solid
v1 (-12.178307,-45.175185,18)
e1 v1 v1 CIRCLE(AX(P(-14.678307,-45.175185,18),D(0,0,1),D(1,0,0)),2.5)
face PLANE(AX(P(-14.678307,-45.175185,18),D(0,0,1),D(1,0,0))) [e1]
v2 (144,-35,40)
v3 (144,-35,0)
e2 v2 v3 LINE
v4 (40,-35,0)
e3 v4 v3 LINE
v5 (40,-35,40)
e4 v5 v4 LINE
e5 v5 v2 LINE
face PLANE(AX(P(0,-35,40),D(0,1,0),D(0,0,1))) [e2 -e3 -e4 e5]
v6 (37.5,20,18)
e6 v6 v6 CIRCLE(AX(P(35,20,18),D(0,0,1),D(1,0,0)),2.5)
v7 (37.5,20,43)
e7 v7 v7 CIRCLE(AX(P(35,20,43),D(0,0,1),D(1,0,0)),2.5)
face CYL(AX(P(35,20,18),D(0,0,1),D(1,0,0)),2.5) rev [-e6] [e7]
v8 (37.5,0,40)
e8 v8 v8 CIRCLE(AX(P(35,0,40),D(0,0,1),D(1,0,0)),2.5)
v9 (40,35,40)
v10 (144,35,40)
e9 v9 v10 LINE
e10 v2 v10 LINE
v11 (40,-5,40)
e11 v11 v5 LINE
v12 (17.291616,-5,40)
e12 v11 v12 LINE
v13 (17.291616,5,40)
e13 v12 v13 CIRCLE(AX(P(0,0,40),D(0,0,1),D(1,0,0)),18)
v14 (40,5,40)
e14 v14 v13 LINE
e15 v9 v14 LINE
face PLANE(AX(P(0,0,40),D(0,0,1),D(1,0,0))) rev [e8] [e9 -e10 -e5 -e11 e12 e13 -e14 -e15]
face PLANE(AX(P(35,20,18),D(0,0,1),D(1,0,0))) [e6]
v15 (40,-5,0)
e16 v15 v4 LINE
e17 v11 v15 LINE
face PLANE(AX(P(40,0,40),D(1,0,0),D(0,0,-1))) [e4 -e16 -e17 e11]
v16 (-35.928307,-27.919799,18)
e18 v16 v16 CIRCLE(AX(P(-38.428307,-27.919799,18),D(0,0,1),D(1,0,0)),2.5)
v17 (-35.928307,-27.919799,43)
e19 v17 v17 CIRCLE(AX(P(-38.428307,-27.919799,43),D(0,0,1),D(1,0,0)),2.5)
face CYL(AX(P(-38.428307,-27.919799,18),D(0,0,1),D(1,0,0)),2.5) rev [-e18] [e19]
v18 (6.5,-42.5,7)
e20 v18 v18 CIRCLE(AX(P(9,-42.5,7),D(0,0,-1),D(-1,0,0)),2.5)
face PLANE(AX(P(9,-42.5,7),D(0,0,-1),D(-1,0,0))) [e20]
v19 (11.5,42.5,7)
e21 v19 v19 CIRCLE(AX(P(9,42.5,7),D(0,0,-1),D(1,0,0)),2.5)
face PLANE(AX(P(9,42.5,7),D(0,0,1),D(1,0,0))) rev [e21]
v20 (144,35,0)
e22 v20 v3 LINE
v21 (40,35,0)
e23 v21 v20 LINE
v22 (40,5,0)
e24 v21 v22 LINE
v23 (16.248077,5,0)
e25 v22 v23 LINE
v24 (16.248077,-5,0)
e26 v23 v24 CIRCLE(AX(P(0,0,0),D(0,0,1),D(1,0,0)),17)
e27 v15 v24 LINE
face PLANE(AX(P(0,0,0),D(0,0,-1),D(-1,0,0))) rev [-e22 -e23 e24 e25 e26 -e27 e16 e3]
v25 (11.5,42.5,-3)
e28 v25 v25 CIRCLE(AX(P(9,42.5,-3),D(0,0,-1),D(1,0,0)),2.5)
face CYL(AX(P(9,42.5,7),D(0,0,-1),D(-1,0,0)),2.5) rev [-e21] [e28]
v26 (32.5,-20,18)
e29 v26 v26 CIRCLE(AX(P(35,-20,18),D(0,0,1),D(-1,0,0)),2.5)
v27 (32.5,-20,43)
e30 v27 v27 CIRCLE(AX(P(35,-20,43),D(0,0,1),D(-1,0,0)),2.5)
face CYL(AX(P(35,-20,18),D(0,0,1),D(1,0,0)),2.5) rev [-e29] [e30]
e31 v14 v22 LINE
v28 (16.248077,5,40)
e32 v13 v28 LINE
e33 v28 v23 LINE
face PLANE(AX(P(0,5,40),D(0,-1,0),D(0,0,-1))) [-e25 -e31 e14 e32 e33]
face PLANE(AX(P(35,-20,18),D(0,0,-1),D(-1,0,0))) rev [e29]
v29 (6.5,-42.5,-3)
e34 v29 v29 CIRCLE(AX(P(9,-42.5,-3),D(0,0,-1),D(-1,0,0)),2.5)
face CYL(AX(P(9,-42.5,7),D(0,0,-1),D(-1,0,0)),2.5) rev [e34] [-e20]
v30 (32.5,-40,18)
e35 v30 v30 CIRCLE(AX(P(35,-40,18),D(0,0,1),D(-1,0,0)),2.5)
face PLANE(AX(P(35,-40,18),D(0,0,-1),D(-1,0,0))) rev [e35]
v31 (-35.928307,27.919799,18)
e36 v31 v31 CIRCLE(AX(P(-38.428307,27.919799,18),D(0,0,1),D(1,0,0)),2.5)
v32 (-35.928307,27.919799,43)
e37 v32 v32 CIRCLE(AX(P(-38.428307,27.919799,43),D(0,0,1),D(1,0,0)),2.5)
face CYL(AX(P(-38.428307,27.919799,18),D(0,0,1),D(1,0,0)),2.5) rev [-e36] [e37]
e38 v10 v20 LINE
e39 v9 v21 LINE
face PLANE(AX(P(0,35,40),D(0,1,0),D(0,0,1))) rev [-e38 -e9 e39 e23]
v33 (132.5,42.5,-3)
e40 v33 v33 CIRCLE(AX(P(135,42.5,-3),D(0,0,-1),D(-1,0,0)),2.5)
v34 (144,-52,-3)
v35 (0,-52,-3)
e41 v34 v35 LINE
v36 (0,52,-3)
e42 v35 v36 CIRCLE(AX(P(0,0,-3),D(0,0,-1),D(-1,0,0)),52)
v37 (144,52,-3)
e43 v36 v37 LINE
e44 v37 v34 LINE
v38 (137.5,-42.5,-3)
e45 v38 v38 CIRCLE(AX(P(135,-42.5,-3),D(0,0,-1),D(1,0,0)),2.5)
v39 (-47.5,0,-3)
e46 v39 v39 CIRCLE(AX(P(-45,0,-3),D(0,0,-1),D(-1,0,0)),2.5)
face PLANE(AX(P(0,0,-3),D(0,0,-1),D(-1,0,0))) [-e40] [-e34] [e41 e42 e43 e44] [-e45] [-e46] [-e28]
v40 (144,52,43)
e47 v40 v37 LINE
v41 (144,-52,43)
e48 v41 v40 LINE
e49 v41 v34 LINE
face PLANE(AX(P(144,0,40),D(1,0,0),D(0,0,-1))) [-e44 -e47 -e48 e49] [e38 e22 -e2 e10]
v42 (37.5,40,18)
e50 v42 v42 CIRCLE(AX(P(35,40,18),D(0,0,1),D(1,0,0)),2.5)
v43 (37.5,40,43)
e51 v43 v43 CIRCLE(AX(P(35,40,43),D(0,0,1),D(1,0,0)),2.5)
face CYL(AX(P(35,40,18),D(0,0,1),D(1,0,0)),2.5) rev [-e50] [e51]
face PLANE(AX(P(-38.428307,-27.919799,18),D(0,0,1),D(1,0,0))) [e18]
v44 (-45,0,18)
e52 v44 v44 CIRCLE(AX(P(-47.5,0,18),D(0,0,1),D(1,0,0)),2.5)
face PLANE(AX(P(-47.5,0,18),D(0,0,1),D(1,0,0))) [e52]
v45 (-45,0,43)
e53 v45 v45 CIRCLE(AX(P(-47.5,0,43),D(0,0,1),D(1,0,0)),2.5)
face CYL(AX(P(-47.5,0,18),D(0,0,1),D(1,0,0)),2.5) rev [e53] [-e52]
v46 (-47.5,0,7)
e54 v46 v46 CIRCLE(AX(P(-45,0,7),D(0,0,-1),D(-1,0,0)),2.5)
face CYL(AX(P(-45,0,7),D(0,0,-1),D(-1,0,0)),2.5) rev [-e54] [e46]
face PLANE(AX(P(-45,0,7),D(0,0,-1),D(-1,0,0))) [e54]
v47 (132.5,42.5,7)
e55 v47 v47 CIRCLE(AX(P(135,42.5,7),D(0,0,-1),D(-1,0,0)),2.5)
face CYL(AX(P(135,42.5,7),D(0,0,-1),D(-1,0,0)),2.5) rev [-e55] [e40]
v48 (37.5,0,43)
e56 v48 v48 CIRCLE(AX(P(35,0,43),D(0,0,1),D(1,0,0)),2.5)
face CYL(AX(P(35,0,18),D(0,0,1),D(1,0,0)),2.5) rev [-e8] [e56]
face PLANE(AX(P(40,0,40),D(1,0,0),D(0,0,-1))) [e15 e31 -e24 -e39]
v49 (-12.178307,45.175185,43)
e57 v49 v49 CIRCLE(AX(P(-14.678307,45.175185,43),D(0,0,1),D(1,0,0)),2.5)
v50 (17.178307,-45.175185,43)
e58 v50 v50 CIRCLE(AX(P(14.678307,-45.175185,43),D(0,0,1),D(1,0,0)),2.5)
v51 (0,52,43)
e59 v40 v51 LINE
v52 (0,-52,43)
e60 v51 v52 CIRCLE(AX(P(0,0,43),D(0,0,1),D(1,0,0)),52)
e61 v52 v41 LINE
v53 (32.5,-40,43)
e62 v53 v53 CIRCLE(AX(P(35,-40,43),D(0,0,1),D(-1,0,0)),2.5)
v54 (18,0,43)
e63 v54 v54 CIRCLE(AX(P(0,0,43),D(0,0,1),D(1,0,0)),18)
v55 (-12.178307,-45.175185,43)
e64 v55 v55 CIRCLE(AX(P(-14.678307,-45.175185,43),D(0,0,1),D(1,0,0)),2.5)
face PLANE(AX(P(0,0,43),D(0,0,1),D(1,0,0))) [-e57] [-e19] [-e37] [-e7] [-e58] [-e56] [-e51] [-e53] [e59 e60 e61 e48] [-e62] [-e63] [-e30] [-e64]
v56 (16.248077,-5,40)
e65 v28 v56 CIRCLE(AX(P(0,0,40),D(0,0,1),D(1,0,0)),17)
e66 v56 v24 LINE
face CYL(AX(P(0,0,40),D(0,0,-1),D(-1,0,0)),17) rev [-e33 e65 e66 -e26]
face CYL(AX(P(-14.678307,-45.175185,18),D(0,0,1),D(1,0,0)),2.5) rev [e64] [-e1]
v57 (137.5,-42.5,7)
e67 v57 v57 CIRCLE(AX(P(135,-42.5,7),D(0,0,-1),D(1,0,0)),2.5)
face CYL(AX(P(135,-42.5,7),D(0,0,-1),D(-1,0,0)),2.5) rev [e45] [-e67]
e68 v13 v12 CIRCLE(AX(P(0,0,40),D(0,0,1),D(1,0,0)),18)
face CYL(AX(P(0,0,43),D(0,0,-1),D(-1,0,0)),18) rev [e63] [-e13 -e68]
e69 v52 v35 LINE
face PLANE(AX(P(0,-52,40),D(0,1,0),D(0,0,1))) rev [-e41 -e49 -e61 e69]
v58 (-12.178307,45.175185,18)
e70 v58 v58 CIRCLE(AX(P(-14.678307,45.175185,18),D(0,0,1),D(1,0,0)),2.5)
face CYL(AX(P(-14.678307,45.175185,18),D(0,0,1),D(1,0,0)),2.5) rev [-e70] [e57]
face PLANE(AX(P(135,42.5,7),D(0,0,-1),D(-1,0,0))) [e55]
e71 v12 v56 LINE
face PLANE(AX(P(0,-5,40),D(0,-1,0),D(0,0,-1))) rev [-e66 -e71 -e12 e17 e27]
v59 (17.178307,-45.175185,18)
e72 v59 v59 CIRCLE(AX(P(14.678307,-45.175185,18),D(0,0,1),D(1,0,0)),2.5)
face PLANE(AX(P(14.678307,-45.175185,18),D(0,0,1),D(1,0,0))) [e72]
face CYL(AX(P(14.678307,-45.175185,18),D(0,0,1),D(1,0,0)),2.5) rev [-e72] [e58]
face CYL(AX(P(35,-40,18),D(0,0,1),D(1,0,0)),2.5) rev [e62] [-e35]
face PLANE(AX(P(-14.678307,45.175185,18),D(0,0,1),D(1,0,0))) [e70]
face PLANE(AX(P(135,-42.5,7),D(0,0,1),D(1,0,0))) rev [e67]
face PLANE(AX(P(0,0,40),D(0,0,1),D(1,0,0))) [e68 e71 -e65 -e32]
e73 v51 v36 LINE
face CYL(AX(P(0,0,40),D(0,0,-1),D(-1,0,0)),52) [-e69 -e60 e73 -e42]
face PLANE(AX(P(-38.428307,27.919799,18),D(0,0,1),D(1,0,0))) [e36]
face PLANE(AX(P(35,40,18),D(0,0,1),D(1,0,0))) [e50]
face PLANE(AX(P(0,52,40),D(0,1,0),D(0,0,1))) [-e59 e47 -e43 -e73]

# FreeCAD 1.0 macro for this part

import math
import FreeCAD as App
import Part
import Sketcher

V = App.Vector

doc = App.newDocument("Part")
body = doc.addObject("PartDesign::Body", "Body")

# Sketch on XY plane
sketch1 = body.newObject("Sketcher::SketchObject", "Sketch")
sketch1.AttachmentSupport = (doc.getObject("XY_Plane"), [""])
sketch1.MapMode = "FlatFace"
sketch1.addGeometry([
    Part.LineSegment(V(144, 52, 0), V(0, 52, 0)),  # 0
    Part.ArcOfCircle(Part.Circle(V(0, 0, 0), V(0, 0, 1), 52), math.radians(90), math.radians(270)),  # 1
    Part.LineSegment(V(0, -52, 0), V(144, -52, 0)),  # 2
    Part.LineSegment(V(144, -52, 0), V(144, -35, 0)),  # 3
    Part.LineSegment(V(144, -35, 0), V(40, -35, 0)),  # 4
    Part.LineSegment(V(40, -35, 0), V(40, -5, 0)),  # 5
    Part.LineSegment(V(40, -5, 0), V(16, -5, 0)),  # 6
    Part.ArcOfCircle(Part.Circle(V(0, 0, 0), V(0, 0, 1), 17), math.radians(17), math.radians(343)),  # 7
    Part.LineSegment(V(16, 5, 0), V(40, 5, 0)),  # 8
    Part.LineSegment(V(40, 5, 0), V(40, 35, 0)),  # 9
    Part.LineSegment(V(40, 35, 0), V(144, 35, 0)),  # 10
    Part.LineSegment(V(144, 35, 0), V(144, 52, 0)),  # 11
], False)
sketch1.addConstraint([
    Sketcher.Constraint("Tangent", 0, 2, 1, 1),
    Sketcher.Constraint("Tangent", 1, 2, 2, 1),
    Sketcher.Constraint("Coincident", 2, 2, 3, 1),
    Sketcher.Constraint("Coincident", 3, 2, 4, 1),
    Sketcher.Constraint("Coincident", 4, 2, 5, 1),
    Sketcher.Constraint("Coincident", 5, 2, 6, 1),
    Sketcher.Constraint("Coincident", 6, 2, 7, 2),
    Sketcher.Constraint("Coincident", 7, 1, 8, 1),
    Sketcher.Constraint("Coincident", 8, 2, 9, 1),
    Sketcher.Constraint("Coincident", 9, 2, 10, 1),
    Sketcher.Constraint("Coincident", 10, 2, 11, 1),
    Sketcher.Constraint("Coincident", 11, 2, 0, 1),
    Sketcher.Constraint("Horizontal", 0),
    Sketcher.Constraint("Horizontal", 2),
    Sketcher.Constraint("Vertical", 3),
    Sketcher.Constraint("Horizontal", 4),
    Sketcher.Constraint("Vertical", 5),
    Sketcher.Constraint("Horizontal", 6),
    Sketcher.Constraint("Horizontal", 8),
    Sketcher.Constraint("Vertical", 9),
    Sketcher.Constraint("Horizontal", 10),
    Sketcher.Constraint("Vertical", 11),
    Sketcher.Constraint("Coincident", 1, 3, -1, 1),
    Sketcher.Constraint("Coincident", 7, 3, -1, 1),
    Sketcher.Constraint("Symmetric", 5, 2, 8, 2, -1),
    Sketcher.Constraint("Symmetric", 3, 2, 10, 2, -1),
    Sketcher.Constraint("Radius", 1, 52.0),
    Sketcher.Constraint("Radius", 7, 17.0),
    Sketcher.Constraint("DistanceX", 0, 2, 0, 1, 144.0),
    Sketcher.Constraint("DistanceX", 4, 2, 4, 1, 104.0),
    Sketcher.Constraint("DistanceY", 3, 1, 3, 2, 17.0),
    Sketcher.Constraint("DistanceY", 5, 1, 5, 2, 30.0),
])
pad1 = body.newObject("PartDesign::Pad", "Pad")
pad1.Profile = sketch1
pad1.Length = 40

# Sketch on XY plane
sketch2 = body.newObject("Sketcher::SketchObject", "Sketch001")
sketch2.AttachmentSupport = (doc.getObject("XY_Plane"), [""])
sketch2.MapMode = "FlatFace"
sketch2.AttachmentOffset = App.Placement(V(0, 0, 40), App.Rotation())
sketch2.addGeometry([
    Part.LineSegment(V(144, -52, 0), V(144, 52, 0)),  # 0
    Part.LineSegment(V(144, 52, 0), V(0, 52, 0)),  # 1
    Part.ArcOfCircle(Part.Circle(V(0, 0, 0), V(0, 0, 1), 52), math.radians(90), math.radians(270)),  # 2
    Part.LineSegment(V(0, -52, 0), V(144, -52, 0)),  # 3
    Part.Circle(V(0, 0, 0), V(0, 0, 1), 18),  # 4
], False)
sketch2.addConstraint([
    Sketcher.Constraint("Coincident", 0, 2, 1, 1),
    Sketcher.Constraint("Tangent", 1, 2, 2, 1),
    Sketcher.Constraint("Tangent", 2, 2, 3, 1),
    Sketcher.Constraint("Coincident", 3, 2, 0, 1),
    Sketcher.Constraint("Vertical", 0),
    Sketcher.Constraint("Horizontal", 1),
    Sketcher.Constraint("Horizontal", 3),
    Sketcher.Constraint("Coincident", 2, 3, -1, 1),
    Sketcher.Constraint("Coincident", 4, 3, -1, 1),
    Sketcher.Constraint("Diameter", 4, 36.0),
    Sketcher.Constraint("Radius", 2, 52.0),
    Sketcher.Constraint("DistanceX", 1, 2, 1, 1, 144.0),
])
pad2 = body.newObject("PartDesign::Pad", "Pad001")
pad2.Profile = sketch2
pad2.Length = 3

# Sketch on XY plane
sketch3 = body.newObject("Sketcher::SketchObject", "Sketch002")
sketch3.AttachmentSupport = (doc.getObject("XY_Plane"), [""])
sketch3.MapMode = "FlatFace"
sketch3.AttachmentOffset = App.Placement(V(0, 0, -3), App.Rotation())
sketch3.addGeometry([
    Part.LineSegment(V(144, -52, 0), V(0, -52, 0)),
    Part.ArcOfCircle(Part.Circle(V(0, 0, 0), V(0, 0, 1), 52), math.radians(90), math.radians(270)),
    Part.LineSegment(V(0, 52, 0), V(144, 52, 0)),
    Part.LineSegment(V(144, 52, 0), V(144, -52, 0)),
], False)
sketch3.addConstraint([
    Sketcher.Constraint("Tangent", 0, 2, 1, 2),
    Sketcher.Constraint("Tangent", 1, 1, 2, 1),
    Sketcher.Constraint("Coincident", 2, 2, 3, 1),
    Sketcher.Constraint("Coincident", 3, 2, 0, 1),
    Sketcher.Constraint("Horizontal", 0),
    Sketcher.Constraint("Horizontal", 2),
    Sketcher.Constraint("Vertical", 3),
    Sketcher.Constraint("Coincident", 1, 3, -1, 1),
    Sketcher.Constraint("Radius", 1, 52.0),
    Sketcher.Constraint("DistanceX", 0, 2, 0, 1, 144.0),
])
pad3 = body.newObject("PartDesign::Pad", "Pad002")
pad3.Profile = sketch3
pad3.Length = 3

# Sketch on XY plane
sketch4 = body.newObject("Sketcher::SketchObject", "Sketch003")
sketch4.AttachmentSupport = (doc.getObject("XY_Plane"), [""])
sketch4.MapMode = "FlatFace"
sketch4.AttachmentOffset = App.Placement(V(0, 0, -3), App.Rotation())
sketch4.addGeometry([
    Part.Circle(V(135, 42.5, 0), V(0, 0, 1), 2.5),  # 0
    Part.Circle(V(9, 42.5, 0), V(0, 0, 1), 2.5),  # 1
    Part.Circle(V(9, -42.5, 0), V(0, 0, 1), 2.5),  # 2
    Part.Circle(V(135, -42.5, 0), V(0, 0, 1), 2.5),  # 3
    Part.Circle(V(-45, 0, 0), V(0, 0, 1), 2.5),  # 4
], False)
sketch4.addConstraint([
    Sketcher.Constraint("Equal", 0, 1),
    Sketcher.Constraint("Equal", 1, 2),
    Sketcher.Constraint("Equal", 2, 3),
    Sketcher.Constraint("Equal", 3, 4),
    Sketcher.Constraint("Symmetric", 1, 3, 2, 3, -1),
    Sketcher.Constraint("Symmetric", 0, 3, 3, 3, -1),
    Sketcher.Constraint("PointOnObject", 4, 3, -1),
    Sketcher.Constraint("Horizontal", 0, 3, 1, 3),
    Sketcher.Constraint("Diameter", 0, 5.0),
    Sketcher.Constraint("DistanceX", -1, 1, 0, 3, 135.0),
    Sketcher.Constraint("DistanceX", -1, 1, 1, 3, 9.0),
    Sketcher.Constraint("DistanceX", 4, 3, -1, 1, 45.0),
    Sketcher.Constraint("DistanceY", 2, 3, 1, 3, 85.0),
])
pocket1 = body.newObject("PartDesign::Pocket", "Pocket")
pocket1.Profile = sketch4
pocket1.Length = 10
pocket1.Reversed = True

# Sketch on XY plane
sketch5 = body.newObject("Sketcher::SketchObject", "Sketch004")
sketch5.AttachmentSupport = (doc.getObject("XY_Plane"), [""])
sketch5.MapMode = "FlatFace"
sketch5.AttachmentOffset = App.Placement(V(0, 0, 43), App.Rotation())
sketch5.addGeometry([
    Part.Circle(V(35, 0, 0), V(0, 0, 1), 2.5),  # 0
    Part.Circle(V(35, 20, 0), V(0, 0, 1), 2.5),  # 1
    Part.Circle(V(35, 40, 0), V(0, 0, 1), 2.5),  # 2
    Part.Circle(V(35, -40, 0), V(0, 0, 1), 2.5),  # 3
    Part.Circle(V(35, -20, 0), V(0, 0, 1), 2.5),  # 4
    Part.Circle(V(-14.7, 45.2, 0), V(0, 0, 1), 2.5),  # 5
    Part.Circle(V(-38.4, 27.9, 0), V(0, 0, 1), 2.5),  # 6
    Part.Circle(V(-47.5, 0, 0), V(0, 0, 1), 2.5),  # 7
    Part.Circle(V(-38.4, -27.9, 0), V(0, 0, 1), 2.5),  # 8
    Part.Circle(V(-14.7, -45.2, 0), V(0, 0, 1), 2.5),  # 9
    Part.Circle(V(14.7, -45.2, 0), V(0, 0, 1), 2.5),  # 10
], False)
sketch5.addConstraint([
    Sketcher.Constraint("Equal", 0, 1),
    Sketcher.Constraint("Equal", 1, 2),
    Sketcher.Constraint("Equal", 2, 3),
    Sketcher.Constraint("Equal", 3, 4),
    Sketcher.Constraint("Equal", 4, 5),
    Sketcher.Constraint("Equal", 5, 6),
    Sketcher.Constraint("Equal", 6, 7),
    Sketcher.Constraint("Equal", 7, 8),
    Sketcher.Constraint("Equal", 8, 9),
    Sketcher.Constraint("Equal", 9, 10),
    Sketcher.Constraint("Symmetric", 5, 3, 10, 3, -1, 1),
    Sketcher.Constraint("Symmetric", 9, 3, 10, 3, -2),
    Sketcher.Constraint("Symmetric", 2, 3, 3, 3, -1),
    Sketcher.Constraint("Symmetric", 1, 3, 4, 3, -1),
    Sketcher.Constraint("Symmetric", 6, 3, 8, 3, -1),
    Sketcher.Constraint("PointOnObject", 0, 3, -1),
    Sketcher.Constraint("PointOnObject", 7, 3, -1),
    Sketcher.Constraint("Vertical", 0, 3, 1, 3),
    Sketcher.Constraint("Vertical", 1, 3, 2, 3),
    Sketcher.Constraint("Diameter", 0, 5.0),
    Sketcher.Constraint("DistanceX", -1, 1, 0, 3, 35.0),
    Sketcher.Constraint("DistanceY", -1, 1, 1, 3, 20.0),
    Sketcher.Constraint("DistanceY", -1, 1, 2, 3, 40.0),
    Sketcher.Constraint("DistanceX", 7, 3, -1, 1, 47.5),
    Sketcher.Constraint("DistanceX", 6, 3, 5, 3, 23.75),
    Sketcher.Constraint("DistanceY", -1, 1, 6, 3, 27.919799),
    Sketcher.Constraint("DistanceX", 5, 3, -1, 1, 14.678307),
    Sketcher.Constraint("DistanceY", -1, 1, 5, 3, 45.175185),
])
pocket2 = body.newObject("PartDesign::Pocket", "Pocket001")
pocket2.Profile = sketch5
pocket2.Length = 25

doc.recompute()
